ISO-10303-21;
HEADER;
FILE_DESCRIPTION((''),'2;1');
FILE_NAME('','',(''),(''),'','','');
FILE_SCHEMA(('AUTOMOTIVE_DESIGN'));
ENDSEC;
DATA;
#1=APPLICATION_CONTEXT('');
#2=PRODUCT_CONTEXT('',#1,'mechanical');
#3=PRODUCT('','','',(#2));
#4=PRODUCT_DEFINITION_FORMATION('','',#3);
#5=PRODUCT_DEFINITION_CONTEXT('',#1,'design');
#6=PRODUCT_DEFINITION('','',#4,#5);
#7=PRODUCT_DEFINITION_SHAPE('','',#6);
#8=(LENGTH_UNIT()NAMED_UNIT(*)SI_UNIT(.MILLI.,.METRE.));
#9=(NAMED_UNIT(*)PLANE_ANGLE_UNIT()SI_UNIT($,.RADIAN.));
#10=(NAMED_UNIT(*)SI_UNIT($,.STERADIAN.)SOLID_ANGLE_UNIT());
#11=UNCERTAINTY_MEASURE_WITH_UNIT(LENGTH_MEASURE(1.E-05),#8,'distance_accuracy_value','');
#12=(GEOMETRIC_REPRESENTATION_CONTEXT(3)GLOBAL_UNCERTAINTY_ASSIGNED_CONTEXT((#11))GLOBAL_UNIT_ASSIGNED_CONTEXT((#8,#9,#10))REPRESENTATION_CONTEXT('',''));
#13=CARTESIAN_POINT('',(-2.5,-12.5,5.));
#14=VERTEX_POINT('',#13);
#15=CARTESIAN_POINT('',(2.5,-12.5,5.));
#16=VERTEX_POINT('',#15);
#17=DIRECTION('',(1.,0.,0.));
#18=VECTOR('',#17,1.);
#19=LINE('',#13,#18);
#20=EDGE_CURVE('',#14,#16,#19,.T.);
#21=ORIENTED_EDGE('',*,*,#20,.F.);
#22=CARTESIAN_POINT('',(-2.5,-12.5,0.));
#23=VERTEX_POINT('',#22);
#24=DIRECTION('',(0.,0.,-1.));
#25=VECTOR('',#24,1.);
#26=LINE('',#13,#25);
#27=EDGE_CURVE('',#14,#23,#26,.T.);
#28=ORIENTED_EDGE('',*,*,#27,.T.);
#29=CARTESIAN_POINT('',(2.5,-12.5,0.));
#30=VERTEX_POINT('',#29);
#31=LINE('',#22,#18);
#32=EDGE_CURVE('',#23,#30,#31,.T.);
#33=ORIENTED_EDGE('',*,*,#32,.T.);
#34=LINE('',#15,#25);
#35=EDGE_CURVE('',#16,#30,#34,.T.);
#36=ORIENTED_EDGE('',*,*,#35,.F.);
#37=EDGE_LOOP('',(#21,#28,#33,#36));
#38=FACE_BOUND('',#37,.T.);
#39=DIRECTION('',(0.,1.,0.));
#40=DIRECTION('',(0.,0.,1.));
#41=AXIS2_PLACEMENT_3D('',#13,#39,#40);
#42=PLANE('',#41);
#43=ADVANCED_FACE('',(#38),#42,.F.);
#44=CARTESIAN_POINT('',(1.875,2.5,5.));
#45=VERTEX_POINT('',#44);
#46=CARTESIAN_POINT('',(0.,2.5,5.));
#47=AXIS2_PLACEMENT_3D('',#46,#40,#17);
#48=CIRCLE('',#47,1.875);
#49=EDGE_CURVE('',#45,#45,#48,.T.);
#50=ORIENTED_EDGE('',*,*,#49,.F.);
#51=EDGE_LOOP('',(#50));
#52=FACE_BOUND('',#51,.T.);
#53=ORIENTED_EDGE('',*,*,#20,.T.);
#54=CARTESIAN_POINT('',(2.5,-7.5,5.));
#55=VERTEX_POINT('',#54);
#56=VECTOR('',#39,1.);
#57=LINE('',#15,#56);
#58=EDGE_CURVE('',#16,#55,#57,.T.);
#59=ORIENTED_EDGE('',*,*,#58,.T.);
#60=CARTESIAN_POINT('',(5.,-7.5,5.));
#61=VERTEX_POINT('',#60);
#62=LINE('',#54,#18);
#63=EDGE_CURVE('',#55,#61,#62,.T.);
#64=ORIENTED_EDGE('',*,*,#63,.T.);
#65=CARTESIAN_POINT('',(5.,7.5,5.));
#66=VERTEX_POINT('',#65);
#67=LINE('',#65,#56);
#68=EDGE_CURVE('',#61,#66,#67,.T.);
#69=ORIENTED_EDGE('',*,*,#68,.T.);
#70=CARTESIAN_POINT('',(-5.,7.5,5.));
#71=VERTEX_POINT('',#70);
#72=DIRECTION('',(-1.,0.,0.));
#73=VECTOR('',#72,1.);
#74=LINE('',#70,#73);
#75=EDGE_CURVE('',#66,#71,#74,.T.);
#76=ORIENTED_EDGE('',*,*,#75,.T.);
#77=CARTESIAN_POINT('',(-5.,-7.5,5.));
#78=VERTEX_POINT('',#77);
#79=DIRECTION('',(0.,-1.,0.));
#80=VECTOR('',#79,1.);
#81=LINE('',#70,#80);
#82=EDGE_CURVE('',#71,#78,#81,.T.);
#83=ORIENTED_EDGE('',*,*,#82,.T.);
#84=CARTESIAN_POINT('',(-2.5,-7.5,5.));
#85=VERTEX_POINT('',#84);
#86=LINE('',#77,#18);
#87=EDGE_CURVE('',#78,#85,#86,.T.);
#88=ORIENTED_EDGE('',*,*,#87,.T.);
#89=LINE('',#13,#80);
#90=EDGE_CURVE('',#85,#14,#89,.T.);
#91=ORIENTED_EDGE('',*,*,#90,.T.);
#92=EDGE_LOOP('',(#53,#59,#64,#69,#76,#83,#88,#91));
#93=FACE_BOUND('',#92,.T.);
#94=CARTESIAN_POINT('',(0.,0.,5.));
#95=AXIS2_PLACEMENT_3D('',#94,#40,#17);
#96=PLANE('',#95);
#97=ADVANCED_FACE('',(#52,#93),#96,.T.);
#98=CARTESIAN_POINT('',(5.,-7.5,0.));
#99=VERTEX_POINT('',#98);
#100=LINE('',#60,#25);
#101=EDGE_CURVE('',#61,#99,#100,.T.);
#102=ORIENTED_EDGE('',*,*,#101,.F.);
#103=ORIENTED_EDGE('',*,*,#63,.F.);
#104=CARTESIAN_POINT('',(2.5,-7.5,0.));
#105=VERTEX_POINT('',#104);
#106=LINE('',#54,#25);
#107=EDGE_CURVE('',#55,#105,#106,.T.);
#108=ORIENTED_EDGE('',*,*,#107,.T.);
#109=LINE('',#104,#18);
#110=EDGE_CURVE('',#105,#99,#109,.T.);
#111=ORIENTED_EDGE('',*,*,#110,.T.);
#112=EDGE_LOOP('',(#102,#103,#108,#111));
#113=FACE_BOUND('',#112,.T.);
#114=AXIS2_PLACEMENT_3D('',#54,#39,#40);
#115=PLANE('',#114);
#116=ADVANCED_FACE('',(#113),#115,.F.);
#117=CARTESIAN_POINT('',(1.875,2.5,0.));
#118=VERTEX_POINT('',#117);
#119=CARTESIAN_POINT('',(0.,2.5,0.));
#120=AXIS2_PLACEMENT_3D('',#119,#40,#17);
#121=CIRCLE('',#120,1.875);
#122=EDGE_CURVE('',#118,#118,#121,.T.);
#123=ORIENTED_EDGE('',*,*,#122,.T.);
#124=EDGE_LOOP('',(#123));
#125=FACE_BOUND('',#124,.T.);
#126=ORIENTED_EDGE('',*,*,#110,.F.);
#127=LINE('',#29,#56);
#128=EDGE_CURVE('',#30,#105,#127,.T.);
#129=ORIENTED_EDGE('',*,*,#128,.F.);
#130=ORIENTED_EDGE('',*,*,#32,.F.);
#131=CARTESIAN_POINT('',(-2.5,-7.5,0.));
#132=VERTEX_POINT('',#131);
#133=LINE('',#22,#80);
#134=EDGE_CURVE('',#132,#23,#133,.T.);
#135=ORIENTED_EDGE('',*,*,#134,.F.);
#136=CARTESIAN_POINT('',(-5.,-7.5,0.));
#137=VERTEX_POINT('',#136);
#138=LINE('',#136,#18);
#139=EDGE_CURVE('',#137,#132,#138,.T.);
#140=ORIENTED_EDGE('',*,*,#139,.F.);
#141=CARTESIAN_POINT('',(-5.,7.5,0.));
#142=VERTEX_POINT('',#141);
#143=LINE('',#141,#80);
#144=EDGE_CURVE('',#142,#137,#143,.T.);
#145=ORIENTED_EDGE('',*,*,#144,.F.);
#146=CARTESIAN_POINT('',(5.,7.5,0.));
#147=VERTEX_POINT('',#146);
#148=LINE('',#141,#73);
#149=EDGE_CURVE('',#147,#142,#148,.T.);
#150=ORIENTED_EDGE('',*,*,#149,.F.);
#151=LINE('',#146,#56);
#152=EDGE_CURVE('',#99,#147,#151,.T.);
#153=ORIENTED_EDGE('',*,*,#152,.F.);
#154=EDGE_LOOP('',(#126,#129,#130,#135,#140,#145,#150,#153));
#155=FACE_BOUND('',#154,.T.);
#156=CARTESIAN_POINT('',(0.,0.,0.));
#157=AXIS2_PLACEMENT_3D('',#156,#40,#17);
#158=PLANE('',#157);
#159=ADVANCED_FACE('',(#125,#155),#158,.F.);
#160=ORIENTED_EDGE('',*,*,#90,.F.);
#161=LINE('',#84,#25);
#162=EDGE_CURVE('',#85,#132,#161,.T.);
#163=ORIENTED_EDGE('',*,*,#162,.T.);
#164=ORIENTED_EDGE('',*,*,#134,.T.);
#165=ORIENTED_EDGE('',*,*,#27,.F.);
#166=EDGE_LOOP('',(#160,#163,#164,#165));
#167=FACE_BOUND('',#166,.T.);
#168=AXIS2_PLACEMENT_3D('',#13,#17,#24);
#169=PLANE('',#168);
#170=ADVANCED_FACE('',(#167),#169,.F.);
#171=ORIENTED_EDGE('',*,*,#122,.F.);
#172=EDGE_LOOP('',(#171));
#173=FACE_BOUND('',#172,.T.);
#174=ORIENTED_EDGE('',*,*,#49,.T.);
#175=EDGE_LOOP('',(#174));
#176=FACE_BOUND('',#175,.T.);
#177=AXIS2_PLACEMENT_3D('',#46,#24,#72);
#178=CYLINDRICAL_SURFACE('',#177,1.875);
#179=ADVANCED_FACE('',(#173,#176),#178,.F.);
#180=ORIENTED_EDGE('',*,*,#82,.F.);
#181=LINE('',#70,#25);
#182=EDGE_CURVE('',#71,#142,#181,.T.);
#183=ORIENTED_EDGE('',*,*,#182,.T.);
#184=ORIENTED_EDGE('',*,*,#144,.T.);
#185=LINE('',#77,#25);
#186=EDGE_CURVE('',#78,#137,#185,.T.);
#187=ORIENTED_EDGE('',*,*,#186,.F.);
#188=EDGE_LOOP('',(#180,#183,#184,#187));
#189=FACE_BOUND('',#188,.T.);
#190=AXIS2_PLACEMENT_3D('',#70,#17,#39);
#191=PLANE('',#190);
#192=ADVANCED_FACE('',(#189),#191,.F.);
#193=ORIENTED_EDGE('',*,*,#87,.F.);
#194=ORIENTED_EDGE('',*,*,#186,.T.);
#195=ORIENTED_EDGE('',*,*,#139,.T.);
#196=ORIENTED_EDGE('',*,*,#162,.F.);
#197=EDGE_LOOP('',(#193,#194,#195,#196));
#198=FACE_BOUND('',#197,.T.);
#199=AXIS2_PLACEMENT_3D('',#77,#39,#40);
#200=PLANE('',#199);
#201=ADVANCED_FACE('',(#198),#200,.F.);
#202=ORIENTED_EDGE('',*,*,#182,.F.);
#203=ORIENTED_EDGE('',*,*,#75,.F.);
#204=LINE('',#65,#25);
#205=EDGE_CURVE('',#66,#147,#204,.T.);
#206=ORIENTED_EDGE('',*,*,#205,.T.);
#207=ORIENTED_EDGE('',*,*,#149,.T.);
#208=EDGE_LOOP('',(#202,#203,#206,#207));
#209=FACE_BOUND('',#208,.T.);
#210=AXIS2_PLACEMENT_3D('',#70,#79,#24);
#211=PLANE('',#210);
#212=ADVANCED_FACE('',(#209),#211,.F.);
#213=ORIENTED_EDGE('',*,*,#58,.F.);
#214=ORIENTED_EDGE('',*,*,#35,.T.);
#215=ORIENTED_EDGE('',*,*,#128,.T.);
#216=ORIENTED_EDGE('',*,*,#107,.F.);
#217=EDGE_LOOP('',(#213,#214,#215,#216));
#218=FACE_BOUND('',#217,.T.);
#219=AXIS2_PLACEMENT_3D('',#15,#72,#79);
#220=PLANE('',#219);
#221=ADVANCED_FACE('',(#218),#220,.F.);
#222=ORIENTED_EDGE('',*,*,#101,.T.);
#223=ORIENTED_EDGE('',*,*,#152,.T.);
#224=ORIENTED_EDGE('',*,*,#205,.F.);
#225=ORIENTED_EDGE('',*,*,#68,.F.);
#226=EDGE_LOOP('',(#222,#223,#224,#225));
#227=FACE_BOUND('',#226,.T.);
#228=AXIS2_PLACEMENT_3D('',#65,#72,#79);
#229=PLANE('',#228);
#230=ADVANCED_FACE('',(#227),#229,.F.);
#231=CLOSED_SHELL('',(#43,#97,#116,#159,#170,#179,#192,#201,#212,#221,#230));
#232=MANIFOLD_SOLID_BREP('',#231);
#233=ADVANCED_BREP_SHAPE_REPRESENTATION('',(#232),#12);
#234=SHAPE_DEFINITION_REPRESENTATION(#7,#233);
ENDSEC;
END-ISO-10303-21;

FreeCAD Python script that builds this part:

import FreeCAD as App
import Part
import Sketcher

V = App.Vector

doc = App.newDocument("Part")
body = doc.addObject("PartDesign::Body", "Body")

# Sketch on XY plane
sketch1 = body.newObject("Sketcher::SketchObject", "Sketch")
sketch1.AttachmentSupport = (doc.getObject("XY_Plane"), [""])
sketch1.MapMode = "FlatFace"
sketch1.addGeometry([
    Part.LineSegment(V(2.5, -7.5, 0), V(5, -7.5, 0)),  # 0
    Part.LineSegment(V(5, -7.5, 0), V(5, 7.5, 0)),  # 1
    Part.LineSegment(V(5, 7.5, 0), V(-5, 7.5, 0)),  # 2
    Part.LineSegment(V(-5, 7.5, 0), V(-5, -7.5, 0)),  # 3
    Part.LineSegment(V(-5, -7.5, 0), V(-2.5, -7.5, 0)),  # 4
    Part.LineSegment(V(-2.5, -7.5, 0), V(-2.5, -12.5, 0)),  # 5
    Part.LineSegment(V(-2.5, -12.5, 0), V(2.5, -12.5, 0)),  # 6
    Part.LineSegment(V(2.5, -12.5, 0), V(2.5, -7.5, 0)),  # 7
    Part.Circle(V(0, 2.5, 0), V(0, 0, 1), 1.9),  # 8
], False)
sketch1.addConstraint([
    Sketcher.Constraint("Coincident", 0, 2, 1, 1),
    Sketcher.Constraint("Coincident", 1, 2, 2, 1),
    Sketcher.Constraint("Coincident", 2, 2, 3, 1),
    Sketcher.Constraint("Coincident", 3, 2, 4, 1),
    Sketcher.Constraint("Coincident", 4, 2, 5, 1),
    Sketcher.Constraint("Coincident", 5, 2, 6, 1),
    Sketcher.Constraint("Coincident", 6, 2, 7, 1),
    Sketcher.Constraint("Coincident", 7, 2, 0, 1),
    Sketcher.Constraint("Horizontal", 0),
    Sketcher.Constraint("Vertical", 1),
    Sketcher.Constraint("Horizontal", 2),
    Sketcher.Constraint("Vertical", 3),
    Sketcher.Constraint("Horizontal", 4),
    Sketcher.Constraint("Vertical", 5),
    Sketcher.Constraint("Horizontal", 6),
    Sketcher.Constraint("Vertical", 7),
    Sketcher.Constraint("Symmetric", 0, 2, 2, 2, -1, 1),
    Sketcher.Constraint("Symmetric", 4, 2, 7, 2, -2),
    Sketcher.Constraint("PointOnObject", 8, 3, -2),
    Sketcher.Constraint("Equal", 6, 5),
    Sketcher.Constraint("Diameter", 8, 3.75),
    Sketcher.Constraint("DistanceX", 2, 2, 2, 1, 10.0),
    Sketcher.Constraint("DistanceX", 6, 1, 6, 2, 5.0),
    Sketcher.Constraint("DistanceY", 1, 1, 1, 2, 15.0),
    Sketcher.Constraint("DistanceY", 0, 2, 8, 3, 10.0),
])
pad1 = body.newObject("PartDesign::Pad", "Pad")
pad1.Profile = sketch1
pad1.Length = 5

doc.recompute()
